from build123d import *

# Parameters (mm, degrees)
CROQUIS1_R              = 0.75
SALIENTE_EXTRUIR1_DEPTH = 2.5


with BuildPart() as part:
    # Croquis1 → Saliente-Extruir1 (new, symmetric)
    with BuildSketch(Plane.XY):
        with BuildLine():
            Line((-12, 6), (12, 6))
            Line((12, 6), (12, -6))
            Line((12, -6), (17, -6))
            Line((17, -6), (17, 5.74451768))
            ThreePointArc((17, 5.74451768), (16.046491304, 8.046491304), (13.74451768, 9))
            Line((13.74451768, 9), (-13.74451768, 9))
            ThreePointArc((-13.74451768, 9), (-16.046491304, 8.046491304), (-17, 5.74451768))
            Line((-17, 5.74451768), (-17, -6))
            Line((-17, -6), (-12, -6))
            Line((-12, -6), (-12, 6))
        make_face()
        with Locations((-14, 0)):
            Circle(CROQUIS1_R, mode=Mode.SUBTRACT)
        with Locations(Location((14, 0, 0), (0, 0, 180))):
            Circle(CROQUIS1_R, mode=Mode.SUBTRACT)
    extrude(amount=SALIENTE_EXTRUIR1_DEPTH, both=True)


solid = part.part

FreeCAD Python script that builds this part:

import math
import FreeCAD as App
import Part
import Sketcher
from FreeCAD import Vector

doc = App.newDocument("Part")
body = doc.addObject("PartDesign::Body", "Body")

# Sketch on XY plane
sketch1 = body.newObject("Sketcher::SketchObject", "Sketch")
sketch1.AttachmentSupport = (doc.getObject("XY_Plane"), [""])
sketch1.MapMode = "FlatFace"
sketch1.addGeometry(Part.LineSegment(Vector(-12, 6, 0), Vector(12, 6, 0)), False)
sketch1.addGeometry(Part.LineSegment(Vector(12, 6, 0), Vector(12, -6, 0)), False)
sketch1.addGeometry(Part.LineSegment(Vector(12, -6, 0), Vector(17, -6, 0)), False)
sketch1.addGeometry(Part.LineSegment(Vector(17, -6, 0), Vector(17, 5.7, 0)), False)
sketch1.addGeometry(Part.ArcOfCircle(Part.Circle(Vector(13.7, 5.7, 0), Vector(0, 0, 1), 3.3), math.radians(0), math.radians(90)), False)
sketch1.addGeometry(Part.LineSegment(Vector(13.7, 9, 0), Vector(-13.7, 9, 0)), False)
sketch1.addGeometry(Part.ArcOfCircle(Part.Circle(Vector(-13.7, 5.7, 0), Vector(0, 0, 1), 3.3), math.radians(90), math.radians(180)), False)
sketch1.addGeometry(Part.LineSegment(Vector(-17, 5.7, 0), Vector(-17, -6, 0)), False)
sketch1.addGeometry(Part.LineSegment(Vector(-17, -6, 0), Vector(-12, -6, 0)), False)
sketch1.addGeometry(Part.LineSegment(Vector(-12, -6, 0), Vector(-12, 6, 0)), False)
sketch1.addGeometry(Part.Circle(Vector(-14, 0, 0), Vector(0, 0, 1), 0.8), False)
sketch1.addGeometry(Part.Circle(Vector(14, 0, 0), Vector(0, 0, 1), 0.8), False)
sketch1.addConstraint(Sketcher.Constraint("Coincident", 0, 2, 1, 1))
sketch1.addConstraint(Sketcher.Constraint("Coincident", 1, 2, 2, 1))
sketch1.addConstraint(Sketcher.Constraint("Coincident", 2, 2, 3, 1))
sketch1.addConstraint(Sketcher.Constraint("Tangent", 3, 2, 4, 1))
sketch1.addConstraint(Sketcher.Constraint("Tangent", 4, 2, 5, 1))
sketch1.addConstraint(Sketcher.Constraint("Tangent", 5, 2, 6, 1))
sketch1.addConstraint(Sketcher.Constraint("Tangent", 6, 2, 7, 1))
sketch1.addConstraint(Sketcher.Constraint("Coincident", 7, 2, 8, 1))
sketch1.addConstraint(Sketcher.Constraint("Coincident", 8, 2, 9, 1))
sketch1.addConstraint(Sketcher.Constraint("Coincident", 9, 2, 0, 1))
sketch1.addConstraint(Sketcher.Constraint("Horizontal", 0))
sketch1.addConstraint(Sketcher.Constraint("Vertical", 1))
sketch1.addConstraint(Sketcher.Constraint("Horizontal", 2))
sketch1.addConstraint(Sketcher.Constraint("Vertical", 3))
sketch1.addConstraint(Sketcher.Constraint("Horizontal", 5))
sketch1.addConstraint(Sketcher.Constraint("Vertical", 7))
sketch1.addConstraint(Sketcher.Constraint("Horizontal", 8))
sketch1.addConstraint(Sketcher.Constraint("Vertical", 9))
sketch1.addConstraint(Sketcher.Constraint("Equal", 4, 6))
sketch1.addConstraint(Sketcher.Constraint("Equal", 10, 11))
sketch1.addConstraint(Sketcher.Constraint("Symmetric", 10, 3, 11, 3, -1, 1))
sketch1.addConstraint(Sketcher.Constraint("Symmetric", 0, 2, 8, 2, -1, 1))
sketch1.addConstraint(Sketcher.Constraint("Symmetric", 2, 2, 7, 2, -2))
sketch1.addConstraint(Sketcher.Constraint("PointOnObject", 10, 3, -1))
sketch1.addConstraint(Sketcher.Constraint("Diameter", 10, 1.5))
sketch1.addConstraint(Sketcher.Constraint("DistanceX", 0, 1, 0, 2, 24.0))
sketch1.addConstraint(Sketcher.Constraint("DistanceX", 2, 1, 2, 2, 5.0))
sketch1.addConstraint(Sketcher.Constraint("DistanceY", 1, 2, 1, 1, 12.0))
sketch1.addConstraint(Sketcher.Constraint("DistanceX", 10, 3, -1, 1, 14.0))
sketch1.addConstraint(Sketcher.Constraint("DistanceY", -1, 1, 4, 2, 9.0))
sketch1.addConstraint(Sketcher.Constraint("Radius", 4, 3.255482))
pad1 = body.newObject("PartDesign::Pad", "Pad")
pad1.Profile = sketch1
pad1.Length = 5
pad1.Midplane = True

doc.recompute()
